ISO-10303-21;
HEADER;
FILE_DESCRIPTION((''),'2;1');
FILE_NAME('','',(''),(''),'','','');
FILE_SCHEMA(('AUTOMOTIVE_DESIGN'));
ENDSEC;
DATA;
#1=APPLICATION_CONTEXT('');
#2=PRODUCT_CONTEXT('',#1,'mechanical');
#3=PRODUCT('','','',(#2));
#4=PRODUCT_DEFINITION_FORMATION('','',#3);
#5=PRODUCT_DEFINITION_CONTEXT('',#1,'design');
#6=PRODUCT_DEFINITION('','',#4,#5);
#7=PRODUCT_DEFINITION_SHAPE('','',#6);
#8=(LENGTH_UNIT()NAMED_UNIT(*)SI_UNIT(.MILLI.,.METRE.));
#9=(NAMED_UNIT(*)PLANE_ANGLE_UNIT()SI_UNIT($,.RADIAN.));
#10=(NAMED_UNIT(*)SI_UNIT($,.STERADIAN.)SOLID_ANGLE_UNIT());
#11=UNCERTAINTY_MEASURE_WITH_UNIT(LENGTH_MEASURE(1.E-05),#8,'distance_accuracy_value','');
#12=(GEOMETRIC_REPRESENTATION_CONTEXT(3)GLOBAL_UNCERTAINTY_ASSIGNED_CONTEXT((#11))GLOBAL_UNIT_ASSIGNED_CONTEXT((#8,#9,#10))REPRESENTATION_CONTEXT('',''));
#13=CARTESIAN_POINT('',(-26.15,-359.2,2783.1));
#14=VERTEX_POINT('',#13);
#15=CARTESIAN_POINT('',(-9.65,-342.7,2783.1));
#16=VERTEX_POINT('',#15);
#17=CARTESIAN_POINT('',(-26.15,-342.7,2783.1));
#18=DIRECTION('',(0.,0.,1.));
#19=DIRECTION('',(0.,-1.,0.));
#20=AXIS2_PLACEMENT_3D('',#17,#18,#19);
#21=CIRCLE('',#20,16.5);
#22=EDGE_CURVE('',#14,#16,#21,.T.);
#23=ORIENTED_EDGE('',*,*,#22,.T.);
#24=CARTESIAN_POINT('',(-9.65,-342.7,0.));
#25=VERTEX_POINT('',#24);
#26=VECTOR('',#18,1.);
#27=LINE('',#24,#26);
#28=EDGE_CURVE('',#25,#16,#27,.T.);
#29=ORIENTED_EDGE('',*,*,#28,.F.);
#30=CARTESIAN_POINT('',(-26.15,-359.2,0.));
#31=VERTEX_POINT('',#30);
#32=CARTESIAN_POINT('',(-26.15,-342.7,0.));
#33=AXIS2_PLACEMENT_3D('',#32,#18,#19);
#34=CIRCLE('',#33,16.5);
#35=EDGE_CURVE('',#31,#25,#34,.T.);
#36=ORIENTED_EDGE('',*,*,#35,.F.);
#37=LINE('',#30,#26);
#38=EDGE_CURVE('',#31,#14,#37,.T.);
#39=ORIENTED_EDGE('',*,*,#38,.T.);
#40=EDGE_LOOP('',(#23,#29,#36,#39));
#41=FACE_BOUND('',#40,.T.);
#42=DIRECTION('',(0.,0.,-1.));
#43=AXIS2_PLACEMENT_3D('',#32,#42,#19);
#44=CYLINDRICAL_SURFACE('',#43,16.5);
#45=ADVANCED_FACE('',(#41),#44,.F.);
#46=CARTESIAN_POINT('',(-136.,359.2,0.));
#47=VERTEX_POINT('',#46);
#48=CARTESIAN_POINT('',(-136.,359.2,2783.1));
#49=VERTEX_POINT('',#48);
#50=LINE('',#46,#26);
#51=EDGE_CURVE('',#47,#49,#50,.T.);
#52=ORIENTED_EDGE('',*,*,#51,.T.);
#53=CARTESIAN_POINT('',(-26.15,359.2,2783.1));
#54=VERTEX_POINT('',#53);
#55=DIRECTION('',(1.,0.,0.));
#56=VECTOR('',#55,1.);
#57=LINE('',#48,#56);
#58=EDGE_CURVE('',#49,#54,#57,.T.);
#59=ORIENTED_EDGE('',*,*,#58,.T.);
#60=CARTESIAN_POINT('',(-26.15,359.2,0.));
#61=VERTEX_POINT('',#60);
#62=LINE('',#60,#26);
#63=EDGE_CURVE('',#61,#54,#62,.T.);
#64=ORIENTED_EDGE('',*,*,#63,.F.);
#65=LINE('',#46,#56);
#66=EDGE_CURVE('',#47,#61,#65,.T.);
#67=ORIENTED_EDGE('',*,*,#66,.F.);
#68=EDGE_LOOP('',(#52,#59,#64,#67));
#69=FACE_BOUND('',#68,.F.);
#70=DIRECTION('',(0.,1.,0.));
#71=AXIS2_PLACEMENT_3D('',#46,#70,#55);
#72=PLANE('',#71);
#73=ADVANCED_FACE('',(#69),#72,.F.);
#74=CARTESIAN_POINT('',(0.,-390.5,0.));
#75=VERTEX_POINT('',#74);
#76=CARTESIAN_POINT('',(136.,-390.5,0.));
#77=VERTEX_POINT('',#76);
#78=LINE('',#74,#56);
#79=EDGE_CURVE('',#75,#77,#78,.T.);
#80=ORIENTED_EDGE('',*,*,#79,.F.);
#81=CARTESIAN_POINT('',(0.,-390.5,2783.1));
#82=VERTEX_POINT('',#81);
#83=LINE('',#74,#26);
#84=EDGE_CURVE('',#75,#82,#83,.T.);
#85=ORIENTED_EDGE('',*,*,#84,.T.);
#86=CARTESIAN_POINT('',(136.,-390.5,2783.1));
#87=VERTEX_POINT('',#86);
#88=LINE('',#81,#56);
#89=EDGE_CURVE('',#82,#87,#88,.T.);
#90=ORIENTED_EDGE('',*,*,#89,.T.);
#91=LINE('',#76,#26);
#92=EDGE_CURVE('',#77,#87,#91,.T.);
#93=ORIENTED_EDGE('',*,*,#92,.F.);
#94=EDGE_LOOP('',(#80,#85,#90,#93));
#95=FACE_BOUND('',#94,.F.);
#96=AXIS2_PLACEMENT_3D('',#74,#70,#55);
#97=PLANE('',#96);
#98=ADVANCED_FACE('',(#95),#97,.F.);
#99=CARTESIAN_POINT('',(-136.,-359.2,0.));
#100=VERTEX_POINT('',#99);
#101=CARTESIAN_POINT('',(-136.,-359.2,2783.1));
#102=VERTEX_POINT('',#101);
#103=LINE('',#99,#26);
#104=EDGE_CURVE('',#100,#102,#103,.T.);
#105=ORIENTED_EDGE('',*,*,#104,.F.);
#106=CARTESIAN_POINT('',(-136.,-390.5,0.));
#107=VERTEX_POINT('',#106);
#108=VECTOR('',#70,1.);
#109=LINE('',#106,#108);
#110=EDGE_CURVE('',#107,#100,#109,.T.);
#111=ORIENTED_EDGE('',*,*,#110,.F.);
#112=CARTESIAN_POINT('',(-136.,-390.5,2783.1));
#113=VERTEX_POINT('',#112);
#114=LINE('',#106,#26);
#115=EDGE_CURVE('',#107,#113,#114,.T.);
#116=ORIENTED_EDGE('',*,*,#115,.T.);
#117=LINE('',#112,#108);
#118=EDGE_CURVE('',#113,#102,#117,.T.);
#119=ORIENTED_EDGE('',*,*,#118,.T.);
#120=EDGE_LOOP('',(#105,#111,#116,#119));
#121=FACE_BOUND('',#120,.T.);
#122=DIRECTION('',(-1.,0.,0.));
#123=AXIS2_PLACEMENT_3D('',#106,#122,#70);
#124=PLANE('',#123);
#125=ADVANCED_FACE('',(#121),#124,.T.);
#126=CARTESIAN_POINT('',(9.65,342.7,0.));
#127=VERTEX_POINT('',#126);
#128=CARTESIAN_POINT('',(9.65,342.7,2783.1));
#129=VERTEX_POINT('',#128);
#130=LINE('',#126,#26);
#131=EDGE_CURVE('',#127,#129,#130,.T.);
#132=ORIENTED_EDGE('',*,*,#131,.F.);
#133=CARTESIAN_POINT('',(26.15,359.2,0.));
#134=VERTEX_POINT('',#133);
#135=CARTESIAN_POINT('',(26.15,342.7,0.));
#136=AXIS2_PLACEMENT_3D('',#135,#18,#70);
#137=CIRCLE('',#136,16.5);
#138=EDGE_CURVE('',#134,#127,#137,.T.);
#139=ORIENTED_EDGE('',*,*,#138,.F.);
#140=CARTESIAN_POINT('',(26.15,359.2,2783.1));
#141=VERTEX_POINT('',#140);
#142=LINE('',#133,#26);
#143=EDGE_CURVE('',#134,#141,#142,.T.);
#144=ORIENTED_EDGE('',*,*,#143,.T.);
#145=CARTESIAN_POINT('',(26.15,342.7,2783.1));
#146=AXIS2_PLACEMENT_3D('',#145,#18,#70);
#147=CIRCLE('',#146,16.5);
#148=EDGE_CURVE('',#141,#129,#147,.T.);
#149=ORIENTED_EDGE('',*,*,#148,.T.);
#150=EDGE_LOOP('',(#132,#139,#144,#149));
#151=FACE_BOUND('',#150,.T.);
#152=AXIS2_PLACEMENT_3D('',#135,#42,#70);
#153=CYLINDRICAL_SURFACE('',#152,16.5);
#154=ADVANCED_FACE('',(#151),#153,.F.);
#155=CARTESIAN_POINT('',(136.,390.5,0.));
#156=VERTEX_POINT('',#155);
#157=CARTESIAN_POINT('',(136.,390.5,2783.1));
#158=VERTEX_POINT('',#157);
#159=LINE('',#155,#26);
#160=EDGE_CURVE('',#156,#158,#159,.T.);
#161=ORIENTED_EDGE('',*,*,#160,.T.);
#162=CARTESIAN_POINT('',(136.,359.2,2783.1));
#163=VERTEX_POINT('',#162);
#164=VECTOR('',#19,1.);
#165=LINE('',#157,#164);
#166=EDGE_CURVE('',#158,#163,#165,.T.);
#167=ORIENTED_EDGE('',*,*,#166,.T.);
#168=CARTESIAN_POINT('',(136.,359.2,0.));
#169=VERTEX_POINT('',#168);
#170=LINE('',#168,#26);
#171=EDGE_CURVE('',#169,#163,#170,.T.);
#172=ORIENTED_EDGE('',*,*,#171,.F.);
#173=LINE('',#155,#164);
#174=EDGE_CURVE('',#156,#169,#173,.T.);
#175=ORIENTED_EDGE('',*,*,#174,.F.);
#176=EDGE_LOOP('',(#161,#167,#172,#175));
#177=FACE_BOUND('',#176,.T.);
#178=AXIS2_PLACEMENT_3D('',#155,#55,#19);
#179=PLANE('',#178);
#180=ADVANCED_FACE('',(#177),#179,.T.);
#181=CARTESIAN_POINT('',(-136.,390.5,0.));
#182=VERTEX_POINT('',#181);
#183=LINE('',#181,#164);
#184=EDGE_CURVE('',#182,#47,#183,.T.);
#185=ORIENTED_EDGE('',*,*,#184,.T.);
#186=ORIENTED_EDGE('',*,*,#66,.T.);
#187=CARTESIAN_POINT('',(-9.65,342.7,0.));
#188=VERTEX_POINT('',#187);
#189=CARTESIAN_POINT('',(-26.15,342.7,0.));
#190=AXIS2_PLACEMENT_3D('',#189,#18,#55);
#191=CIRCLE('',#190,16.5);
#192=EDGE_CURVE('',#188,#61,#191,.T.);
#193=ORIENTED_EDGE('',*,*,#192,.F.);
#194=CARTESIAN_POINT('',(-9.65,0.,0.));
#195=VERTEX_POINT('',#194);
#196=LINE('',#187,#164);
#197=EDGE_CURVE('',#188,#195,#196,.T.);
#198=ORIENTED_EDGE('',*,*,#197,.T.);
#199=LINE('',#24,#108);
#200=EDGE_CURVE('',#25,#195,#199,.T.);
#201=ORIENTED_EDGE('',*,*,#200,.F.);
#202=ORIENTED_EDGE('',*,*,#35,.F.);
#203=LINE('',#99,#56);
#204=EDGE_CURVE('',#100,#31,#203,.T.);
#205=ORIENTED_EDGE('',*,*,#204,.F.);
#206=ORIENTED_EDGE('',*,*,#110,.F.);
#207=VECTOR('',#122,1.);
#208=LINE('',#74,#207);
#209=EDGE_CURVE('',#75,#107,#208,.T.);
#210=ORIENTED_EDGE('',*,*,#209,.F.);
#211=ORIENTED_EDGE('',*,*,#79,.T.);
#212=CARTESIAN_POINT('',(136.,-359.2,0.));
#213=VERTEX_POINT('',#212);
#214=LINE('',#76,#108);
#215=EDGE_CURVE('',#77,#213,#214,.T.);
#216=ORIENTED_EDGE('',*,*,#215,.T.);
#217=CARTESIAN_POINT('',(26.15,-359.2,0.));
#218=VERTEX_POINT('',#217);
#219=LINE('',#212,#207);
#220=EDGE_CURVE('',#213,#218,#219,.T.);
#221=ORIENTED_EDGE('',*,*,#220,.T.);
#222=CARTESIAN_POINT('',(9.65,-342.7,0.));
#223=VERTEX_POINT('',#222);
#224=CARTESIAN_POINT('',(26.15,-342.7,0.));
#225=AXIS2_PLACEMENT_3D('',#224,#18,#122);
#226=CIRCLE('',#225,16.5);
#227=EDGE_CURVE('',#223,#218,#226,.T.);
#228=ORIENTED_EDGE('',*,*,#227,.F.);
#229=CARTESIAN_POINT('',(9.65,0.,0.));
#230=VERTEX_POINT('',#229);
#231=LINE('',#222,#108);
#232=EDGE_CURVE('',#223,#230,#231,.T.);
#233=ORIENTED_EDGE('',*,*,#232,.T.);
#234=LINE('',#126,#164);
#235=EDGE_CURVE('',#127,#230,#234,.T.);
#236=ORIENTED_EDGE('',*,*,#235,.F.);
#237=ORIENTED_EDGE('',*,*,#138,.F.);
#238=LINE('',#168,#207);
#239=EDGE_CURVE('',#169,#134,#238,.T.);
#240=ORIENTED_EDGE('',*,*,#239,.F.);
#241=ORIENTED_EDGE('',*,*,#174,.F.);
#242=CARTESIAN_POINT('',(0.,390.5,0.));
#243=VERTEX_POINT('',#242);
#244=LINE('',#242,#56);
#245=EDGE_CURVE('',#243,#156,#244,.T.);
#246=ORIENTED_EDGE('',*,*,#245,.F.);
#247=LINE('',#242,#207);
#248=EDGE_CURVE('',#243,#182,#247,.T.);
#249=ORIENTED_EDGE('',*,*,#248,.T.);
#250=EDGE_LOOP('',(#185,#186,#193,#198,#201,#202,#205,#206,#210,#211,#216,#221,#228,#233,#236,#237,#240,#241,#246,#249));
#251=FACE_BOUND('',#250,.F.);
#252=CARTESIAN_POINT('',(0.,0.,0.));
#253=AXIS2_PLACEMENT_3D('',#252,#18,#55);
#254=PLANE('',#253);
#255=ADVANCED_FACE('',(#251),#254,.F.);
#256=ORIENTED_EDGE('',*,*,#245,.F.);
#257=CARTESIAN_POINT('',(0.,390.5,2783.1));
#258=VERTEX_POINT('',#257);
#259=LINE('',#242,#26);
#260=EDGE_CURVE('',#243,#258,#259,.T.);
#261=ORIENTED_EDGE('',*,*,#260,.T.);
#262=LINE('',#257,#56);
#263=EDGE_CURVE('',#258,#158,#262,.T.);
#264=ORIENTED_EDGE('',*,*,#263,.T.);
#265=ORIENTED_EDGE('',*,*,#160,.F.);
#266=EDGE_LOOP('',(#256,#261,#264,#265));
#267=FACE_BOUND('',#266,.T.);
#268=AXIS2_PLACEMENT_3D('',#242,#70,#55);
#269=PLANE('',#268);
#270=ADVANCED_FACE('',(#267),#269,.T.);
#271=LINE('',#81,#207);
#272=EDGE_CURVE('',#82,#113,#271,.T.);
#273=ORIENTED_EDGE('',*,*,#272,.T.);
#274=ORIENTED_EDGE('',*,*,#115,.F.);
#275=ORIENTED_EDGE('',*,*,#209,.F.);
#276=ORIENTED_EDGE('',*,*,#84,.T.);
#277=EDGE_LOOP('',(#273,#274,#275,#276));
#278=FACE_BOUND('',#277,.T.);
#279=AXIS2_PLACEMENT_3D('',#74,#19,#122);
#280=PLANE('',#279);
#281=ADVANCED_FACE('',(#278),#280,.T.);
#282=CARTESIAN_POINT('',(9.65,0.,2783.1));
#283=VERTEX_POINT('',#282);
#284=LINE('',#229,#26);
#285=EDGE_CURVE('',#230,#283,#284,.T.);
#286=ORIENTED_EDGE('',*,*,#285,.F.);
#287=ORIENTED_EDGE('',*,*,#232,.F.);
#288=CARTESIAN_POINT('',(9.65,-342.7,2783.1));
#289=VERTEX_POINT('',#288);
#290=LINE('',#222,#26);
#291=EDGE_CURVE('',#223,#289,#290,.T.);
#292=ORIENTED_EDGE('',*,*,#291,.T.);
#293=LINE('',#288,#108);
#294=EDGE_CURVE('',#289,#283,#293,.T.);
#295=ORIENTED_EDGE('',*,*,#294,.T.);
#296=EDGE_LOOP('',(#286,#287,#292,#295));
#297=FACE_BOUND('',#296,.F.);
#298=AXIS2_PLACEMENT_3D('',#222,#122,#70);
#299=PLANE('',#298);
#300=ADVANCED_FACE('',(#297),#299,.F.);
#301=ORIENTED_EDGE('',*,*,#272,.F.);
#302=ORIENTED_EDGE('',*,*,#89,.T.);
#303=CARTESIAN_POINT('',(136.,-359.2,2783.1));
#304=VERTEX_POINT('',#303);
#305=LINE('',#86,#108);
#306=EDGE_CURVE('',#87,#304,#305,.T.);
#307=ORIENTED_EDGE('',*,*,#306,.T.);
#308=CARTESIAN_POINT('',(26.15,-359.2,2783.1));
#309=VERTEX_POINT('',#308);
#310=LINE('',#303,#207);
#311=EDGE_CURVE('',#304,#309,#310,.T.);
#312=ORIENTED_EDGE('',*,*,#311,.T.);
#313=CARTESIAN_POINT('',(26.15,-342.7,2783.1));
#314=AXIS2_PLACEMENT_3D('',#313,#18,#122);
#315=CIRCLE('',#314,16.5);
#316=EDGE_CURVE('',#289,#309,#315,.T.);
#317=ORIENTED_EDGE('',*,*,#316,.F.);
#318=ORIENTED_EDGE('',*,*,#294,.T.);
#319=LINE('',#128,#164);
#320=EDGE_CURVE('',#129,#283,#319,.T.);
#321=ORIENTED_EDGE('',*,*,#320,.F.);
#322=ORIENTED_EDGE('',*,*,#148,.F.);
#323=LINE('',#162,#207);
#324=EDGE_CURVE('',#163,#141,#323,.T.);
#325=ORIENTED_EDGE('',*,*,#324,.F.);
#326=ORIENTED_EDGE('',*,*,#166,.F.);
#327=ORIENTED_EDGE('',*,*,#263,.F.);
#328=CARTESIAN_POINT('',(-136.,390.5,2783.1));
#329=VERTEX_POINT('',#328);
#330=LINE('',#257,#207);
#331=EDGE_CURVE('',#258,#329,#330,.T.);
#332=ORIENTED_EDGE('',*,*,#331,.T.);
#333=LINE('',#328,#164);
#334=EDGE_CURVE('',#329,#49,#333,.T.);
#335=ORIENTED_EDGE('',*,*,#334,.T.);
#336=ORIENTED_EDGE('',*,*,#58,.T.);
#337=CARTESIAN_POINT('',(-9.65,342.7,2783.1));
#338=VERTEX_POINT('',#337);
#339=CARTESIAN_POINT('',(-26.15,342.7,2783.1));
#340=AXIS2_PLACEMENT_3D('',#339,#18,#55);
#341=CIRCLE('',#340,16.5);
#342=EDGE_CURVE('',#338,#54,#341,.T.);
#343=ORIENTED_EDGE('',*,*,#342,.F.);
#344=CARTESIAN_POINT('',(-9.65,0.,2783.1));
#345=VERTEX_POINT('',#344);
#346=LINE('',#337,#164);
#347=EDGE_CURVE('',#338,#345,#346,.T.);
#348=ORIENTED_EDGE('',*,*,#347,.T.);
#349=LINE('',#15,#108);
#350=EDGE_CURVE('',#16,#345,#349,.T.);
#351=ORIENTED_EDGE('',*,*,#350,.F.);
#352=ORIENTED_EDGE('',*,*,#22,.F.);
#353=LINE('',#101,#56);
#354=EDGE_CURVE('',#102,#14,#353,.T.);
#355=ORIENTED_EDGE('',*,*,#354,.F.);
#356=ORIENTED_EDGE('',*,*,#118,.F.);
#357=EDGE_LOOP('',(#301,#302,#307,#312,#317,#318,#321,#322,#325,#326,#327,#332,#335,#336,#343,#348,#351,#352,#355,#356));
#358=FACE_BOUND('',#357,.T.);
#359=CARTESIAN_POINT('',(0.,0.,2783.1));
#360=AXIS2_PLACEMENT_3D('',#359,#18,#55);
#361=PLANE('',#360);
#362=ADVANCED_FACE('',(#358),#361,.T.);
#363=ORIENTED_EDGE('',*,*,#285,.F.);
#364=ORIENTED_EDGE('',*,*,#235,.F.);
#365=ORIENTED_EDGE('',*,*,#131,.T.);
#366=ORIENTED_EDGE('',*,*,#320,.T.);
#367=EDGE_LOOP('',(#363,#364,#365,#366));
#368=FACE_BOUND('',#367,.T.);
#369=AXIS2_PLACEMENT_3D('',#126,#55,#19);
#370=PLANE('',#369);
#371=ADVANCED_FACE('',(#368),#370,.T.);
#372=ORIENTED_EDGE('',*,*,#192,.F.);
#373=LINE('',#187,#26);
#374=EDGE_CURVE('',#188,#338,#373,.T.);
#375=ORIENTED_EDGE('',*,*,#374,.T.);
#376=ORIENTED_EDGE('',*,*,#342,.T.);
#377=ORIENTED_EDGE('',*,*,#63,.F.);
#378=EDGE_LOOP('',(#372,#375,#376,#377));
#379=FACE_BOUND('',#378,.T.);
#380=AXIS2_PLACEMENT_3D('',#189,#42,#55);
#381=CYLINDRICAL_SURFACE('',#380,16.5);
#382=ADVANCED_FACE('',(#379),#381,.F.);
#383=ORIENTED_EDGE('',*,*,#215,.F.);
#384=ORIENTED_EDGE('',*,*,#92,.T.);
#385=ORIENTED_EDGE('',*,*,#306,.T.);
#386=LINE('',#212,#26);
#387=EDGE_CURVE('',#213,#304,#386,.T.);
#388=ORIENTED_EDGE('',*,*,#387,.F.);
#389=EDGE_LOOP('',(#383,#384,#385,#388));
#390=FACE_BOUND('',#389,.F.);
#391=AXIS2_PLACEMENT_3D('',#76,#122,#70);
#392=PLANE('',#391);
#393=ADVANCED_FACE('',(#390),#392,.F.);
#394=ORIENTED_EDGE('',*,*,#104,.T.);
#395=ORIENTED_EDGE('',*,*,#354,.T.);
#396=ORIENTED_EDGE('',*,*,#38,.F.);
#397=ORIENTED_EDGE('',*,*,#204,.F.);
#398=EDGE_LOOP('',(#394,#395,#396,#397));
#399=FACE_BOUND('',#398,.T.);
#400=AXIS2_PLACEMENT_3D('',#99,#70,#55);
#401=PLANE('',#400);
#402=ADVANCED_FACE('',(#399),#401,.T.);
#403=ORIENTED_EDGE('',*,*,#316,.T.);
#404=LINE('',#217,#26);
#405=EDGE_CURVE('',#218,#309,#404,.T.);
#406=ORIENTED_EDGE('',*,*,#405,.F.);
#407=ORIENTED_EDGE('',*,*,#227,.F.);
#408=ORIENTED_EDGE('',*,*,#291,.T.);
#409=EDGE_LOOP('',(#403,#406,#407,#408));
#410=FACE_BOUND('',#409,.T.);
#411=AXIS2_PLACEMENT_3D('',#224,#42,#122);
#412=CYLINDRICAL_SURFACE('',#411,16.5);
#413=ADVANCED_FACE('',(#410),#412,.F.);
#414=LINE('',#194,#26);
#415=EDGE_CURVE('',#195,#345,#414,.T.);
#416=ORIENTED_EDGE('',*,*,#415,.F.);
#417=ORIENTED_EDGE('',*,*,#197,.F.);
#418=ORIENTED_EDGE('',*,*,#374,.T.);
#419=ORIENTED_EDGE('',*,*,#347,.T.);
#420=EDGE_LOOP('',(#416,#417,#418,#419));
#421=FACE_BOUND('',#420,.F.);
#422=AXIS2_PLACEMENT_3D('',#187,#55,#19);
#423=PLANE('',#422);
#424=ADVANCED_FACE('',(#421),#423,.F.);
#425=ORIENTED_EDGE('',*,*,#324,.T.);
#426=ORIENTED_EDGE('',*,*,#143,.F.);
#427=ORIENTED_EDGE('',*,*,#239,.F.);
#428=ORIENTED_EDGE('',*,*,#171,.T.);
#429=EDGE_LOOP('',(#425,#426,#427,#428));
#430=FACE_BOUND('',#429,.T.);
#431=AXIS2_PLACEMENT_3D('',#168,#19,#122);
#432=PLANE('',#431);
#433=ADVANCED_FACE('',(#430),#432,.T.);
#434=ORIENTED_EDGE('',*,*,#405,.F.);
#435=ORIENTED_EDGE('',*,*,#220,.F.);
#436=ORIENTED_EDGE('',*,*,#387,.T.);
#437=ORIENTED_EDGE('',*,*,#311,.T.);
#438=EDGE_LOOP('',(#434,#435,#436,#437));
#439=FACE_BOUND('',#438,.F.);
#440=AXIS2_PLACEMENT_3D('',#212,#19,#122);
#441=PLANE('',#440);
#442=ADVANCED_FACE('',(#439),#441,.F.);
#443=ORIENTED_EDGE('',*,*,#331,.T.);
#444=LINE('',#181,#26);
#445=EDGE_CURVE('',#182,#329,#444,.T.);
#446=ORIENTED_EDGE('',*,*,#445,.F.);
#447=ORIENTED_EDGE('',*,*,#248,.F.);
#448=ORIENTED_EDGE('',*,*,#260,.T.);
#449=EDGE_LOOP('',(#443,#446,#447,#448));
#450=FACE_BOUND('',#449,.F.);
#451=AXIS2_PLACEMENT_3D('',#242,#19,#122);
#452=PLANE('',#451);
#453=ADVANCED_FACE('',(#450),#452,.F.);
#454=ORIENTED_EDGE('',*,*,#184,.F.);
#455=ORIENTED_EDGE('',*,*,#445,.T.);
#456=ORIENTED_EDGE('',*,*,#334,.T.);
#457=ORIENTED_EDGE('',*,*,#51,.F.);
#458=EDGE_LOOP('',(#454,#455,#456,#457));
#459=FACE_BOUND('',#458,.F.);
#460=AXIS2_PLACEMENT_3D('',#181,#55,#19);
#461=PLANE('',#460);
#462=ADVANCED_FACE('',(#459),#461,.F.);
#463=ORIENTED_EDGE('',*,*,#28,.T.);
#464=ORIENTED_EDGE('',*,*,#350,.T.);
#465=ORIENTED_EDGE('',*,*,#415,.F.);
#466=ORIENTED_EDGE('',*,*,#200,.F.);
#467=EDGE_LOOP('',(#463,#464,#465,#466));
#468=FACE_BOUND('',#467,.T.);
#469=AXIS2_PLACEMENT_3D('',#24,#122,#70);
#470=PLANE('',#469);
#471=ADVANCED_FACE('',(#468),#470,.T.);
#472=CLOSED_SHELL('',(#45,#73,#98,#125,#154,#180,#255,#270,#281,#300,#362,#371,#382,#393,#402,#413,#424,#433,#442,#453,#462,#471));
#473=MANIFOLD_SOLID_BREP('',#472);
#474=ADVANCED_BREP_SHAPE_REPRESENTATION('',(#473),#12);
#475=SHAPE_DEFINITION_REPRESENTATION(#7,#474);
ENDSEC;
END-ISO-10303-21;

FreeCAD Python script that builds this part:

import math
import FreeCAD as App
import Part
import Sketcher
Q = App.Units.Quantity

doc = App.newDocument("Part")
params = doc.addObject("Spreadsheet::Sheet", "Params")
for row, (alias, value) in enumerate([
    ("sketch1_radius", "16.5 mm"),
    ("sketch1_height", "31.3 mm"),
    ("pad1_length", "2783.1 mm"),
], start=1):
    params.set(f"A{row}", alias)
    params.set(f"B{row}", "=" + value)
    params.setAlias(f"B{row}", alias)

body = doc.addObject("PartDesign::Body", "Body")

# Sketch on XY plane
sketch1 = body.newObject("Sketcher::SketchObject", "Sketch")
sketch1.AttachmentSupport = (doc.getObject("XY_Plane"), [""])
sketch1.MapMode = "FlatFace"
sketch1.addGeometry([
    Part.LineSegment(App.Vector(-136, -359, 0), App.Vector(-136, -390, 0)),  # 0
    Part.LineSegment(App.Vector(-136, -390, 0), App.Vector(136, -390, 0)),  # 1
    Part.LineSegment(App.Vector(136, -390, 0), App.Vector(136, -359, 0)),  # 2
    Part.LineSegment(App.Vector(136, -359, 0), App.Vector(26, -359, 0)),  # 3
    Part.ArcOfCircle(Part.Circle(App.Vector(26, -343, 0), App.Vector(0, 0, 1), 16), math.radians(180), math.radians(270)),  # 4
    Part.LineSegment(App.Vector(10, -343, 0), App.Vector(10, 343, 0)),  # 5
    Part.ArcOfCircle(Part.Circle(App.Vector(26, 343, 0), App.Vector(0, 0, 1), 16), math.radians(90), math.radians(180)),  # 6
    Part.LineSegment(App.Vector(26, 359, 0), App.Vector(136, 359, 0)),  # 7
    Part.LineSegment(App.Vector(136, 359, 0), App.Vector(136, 390, 0)),  # 8
    Part.LineSegment(App.Vector(136, 390, 0), App.Vector(-136, 390, 0)),  # 9
    Part.LineSegment(App.Vector(-136, 390, 0), App.Vector(-136, 359, 0)),  # 10
    Part.LineSegment(App.Vector(-136, 359, 0), App.Vector(-26, 359, 0)),  # 11
    Part.ArcOfCircle(Part.Circle(App.Vector(-26, 343, 0), App.Vector(0, 0, 1), 16), math.radians(0), math.radians(90)),  # 12
    Part.LineSegment(App.Vector(-10, 343, 0), App.Vector(-10, -343, 0)),  # 13
    Part.ArcOfCircle(Part.Circle(App.Vector(-26, -343, 0), App.Vector(0, 0, 1), 16), math.radians(-90), math.radians(0)),  # 14
    Part.LineSegment(App.Vector(-26, -359, 0), App.Vector(-136, -359, 0)),  # 15
], False)
sketch1.addConstraint([
    Sketcher.Constraint("Coincident", 0, 2, 1, 1),
    Sketcher.Constraint("Coincident", 1, 2, 2, 1),
    Sketcher.Constraint("Coincident", 2, 2, 3, 1),
    Sketcher.Constraint("Tangent", 3, 2, 4, 2),
    Sketcher.Constraint("Tangent", 4, 1, 5, 1),
    Sketcher.Constraint("Tangent", 5, 2, 6, 2),
    Sketcher.Constraint("Tangent", 6, 1, 7, 1),
    Sketcher.Constraint("Coincident", 7, 2, 8, 1),
    Sketcher.Constraint("Coincident", 8, 2, 9, 1),
    Sketcher.Constraint("Coincident", 9, 2, 10, 1),
    Sketcher.Constraint("Coincident", 10, 2, 11, 1),
    Sketcher.Constraint("Tangent", 11, 2, 12, 2),
    Sketcher.Constraint("Tangent", 12, 1, 13, 1),
    Sketcher.Constraint("Tangent", 13, 2, 14, 2),
    Sketcher.Constraint("Tangent", 14, 1, 15, 1),
    Sketcher.Constraint("Coincident", 15, 2, 0, 1),
    Sketcher.Constraint("Vertical", 0),
    Sketcher.Constraint("Horizontal", 1),
    Sketcher.Constraint("Vertical", 2),
    Sketcher.Constraint("Horizontal", 3),
    Sketcher.Constraint("Vertical", 5),
    Sketcher.Constraint("Horizontal", 7),
    Sketcher.Constraint("Vertical", 8),
    Sketcher.Constraint("Horizontal", 9),
    Sketcher.Constraint("Vertical", 10),
    Sketcher.Constraint("Horizontal", 11),
    Sketcher.Constraint("Vertical", 13),
    Sketcher.Constraint("Horizontal", 15),
    Sketcher.Constraint("Equal", 4, 6),
    Sketcher.Constraint("Equal", 6, 12),
    Sketcher.Constraint("Equal", 12, 14),
    Sketcher.Constraint("Symmetric", 4, 3, 12, 3, -1, 1),
    Sketcher.Constraint("Symmetric", 0, 2, 8, 2, -1, 1),
    Sketcher.Constraint("Symmetric", 7, 2, 10, 2, -2),
    Sketcher.Constraint("Symmetric", 2, 2, 15, 2, -2),
    Sketcher.Constraint("Radius", 4, Q("16.5 mm")),
    Sketcher.Constraint("DistanceY", 0, 2, 0, 1, Q("31.3 mm")),
    Sketcher.Constraint("DistanceX", 0, 2, -1, 1, Q("136 mm")),
    Sketcher.Constraint("DistanceY", 0, 2, -1, 1, Q("390.5 mm")),
    Sketcher.Constraint("DistanceX", -1, 1, 4, 1, Q("9.65 mm")),
])
sketch1.setExpression("Constraints[35]", "Params.sketch1_radius")
sketch1.setExpression("Constraints[36]", "Params.sketch1_height")
pad1 = body.newObject("PartDesign::Pad", "Pad")
pad1.Profile = sketch1
pad1.setExpression("Length", "Params.pad1_length")

doc.recompute()
